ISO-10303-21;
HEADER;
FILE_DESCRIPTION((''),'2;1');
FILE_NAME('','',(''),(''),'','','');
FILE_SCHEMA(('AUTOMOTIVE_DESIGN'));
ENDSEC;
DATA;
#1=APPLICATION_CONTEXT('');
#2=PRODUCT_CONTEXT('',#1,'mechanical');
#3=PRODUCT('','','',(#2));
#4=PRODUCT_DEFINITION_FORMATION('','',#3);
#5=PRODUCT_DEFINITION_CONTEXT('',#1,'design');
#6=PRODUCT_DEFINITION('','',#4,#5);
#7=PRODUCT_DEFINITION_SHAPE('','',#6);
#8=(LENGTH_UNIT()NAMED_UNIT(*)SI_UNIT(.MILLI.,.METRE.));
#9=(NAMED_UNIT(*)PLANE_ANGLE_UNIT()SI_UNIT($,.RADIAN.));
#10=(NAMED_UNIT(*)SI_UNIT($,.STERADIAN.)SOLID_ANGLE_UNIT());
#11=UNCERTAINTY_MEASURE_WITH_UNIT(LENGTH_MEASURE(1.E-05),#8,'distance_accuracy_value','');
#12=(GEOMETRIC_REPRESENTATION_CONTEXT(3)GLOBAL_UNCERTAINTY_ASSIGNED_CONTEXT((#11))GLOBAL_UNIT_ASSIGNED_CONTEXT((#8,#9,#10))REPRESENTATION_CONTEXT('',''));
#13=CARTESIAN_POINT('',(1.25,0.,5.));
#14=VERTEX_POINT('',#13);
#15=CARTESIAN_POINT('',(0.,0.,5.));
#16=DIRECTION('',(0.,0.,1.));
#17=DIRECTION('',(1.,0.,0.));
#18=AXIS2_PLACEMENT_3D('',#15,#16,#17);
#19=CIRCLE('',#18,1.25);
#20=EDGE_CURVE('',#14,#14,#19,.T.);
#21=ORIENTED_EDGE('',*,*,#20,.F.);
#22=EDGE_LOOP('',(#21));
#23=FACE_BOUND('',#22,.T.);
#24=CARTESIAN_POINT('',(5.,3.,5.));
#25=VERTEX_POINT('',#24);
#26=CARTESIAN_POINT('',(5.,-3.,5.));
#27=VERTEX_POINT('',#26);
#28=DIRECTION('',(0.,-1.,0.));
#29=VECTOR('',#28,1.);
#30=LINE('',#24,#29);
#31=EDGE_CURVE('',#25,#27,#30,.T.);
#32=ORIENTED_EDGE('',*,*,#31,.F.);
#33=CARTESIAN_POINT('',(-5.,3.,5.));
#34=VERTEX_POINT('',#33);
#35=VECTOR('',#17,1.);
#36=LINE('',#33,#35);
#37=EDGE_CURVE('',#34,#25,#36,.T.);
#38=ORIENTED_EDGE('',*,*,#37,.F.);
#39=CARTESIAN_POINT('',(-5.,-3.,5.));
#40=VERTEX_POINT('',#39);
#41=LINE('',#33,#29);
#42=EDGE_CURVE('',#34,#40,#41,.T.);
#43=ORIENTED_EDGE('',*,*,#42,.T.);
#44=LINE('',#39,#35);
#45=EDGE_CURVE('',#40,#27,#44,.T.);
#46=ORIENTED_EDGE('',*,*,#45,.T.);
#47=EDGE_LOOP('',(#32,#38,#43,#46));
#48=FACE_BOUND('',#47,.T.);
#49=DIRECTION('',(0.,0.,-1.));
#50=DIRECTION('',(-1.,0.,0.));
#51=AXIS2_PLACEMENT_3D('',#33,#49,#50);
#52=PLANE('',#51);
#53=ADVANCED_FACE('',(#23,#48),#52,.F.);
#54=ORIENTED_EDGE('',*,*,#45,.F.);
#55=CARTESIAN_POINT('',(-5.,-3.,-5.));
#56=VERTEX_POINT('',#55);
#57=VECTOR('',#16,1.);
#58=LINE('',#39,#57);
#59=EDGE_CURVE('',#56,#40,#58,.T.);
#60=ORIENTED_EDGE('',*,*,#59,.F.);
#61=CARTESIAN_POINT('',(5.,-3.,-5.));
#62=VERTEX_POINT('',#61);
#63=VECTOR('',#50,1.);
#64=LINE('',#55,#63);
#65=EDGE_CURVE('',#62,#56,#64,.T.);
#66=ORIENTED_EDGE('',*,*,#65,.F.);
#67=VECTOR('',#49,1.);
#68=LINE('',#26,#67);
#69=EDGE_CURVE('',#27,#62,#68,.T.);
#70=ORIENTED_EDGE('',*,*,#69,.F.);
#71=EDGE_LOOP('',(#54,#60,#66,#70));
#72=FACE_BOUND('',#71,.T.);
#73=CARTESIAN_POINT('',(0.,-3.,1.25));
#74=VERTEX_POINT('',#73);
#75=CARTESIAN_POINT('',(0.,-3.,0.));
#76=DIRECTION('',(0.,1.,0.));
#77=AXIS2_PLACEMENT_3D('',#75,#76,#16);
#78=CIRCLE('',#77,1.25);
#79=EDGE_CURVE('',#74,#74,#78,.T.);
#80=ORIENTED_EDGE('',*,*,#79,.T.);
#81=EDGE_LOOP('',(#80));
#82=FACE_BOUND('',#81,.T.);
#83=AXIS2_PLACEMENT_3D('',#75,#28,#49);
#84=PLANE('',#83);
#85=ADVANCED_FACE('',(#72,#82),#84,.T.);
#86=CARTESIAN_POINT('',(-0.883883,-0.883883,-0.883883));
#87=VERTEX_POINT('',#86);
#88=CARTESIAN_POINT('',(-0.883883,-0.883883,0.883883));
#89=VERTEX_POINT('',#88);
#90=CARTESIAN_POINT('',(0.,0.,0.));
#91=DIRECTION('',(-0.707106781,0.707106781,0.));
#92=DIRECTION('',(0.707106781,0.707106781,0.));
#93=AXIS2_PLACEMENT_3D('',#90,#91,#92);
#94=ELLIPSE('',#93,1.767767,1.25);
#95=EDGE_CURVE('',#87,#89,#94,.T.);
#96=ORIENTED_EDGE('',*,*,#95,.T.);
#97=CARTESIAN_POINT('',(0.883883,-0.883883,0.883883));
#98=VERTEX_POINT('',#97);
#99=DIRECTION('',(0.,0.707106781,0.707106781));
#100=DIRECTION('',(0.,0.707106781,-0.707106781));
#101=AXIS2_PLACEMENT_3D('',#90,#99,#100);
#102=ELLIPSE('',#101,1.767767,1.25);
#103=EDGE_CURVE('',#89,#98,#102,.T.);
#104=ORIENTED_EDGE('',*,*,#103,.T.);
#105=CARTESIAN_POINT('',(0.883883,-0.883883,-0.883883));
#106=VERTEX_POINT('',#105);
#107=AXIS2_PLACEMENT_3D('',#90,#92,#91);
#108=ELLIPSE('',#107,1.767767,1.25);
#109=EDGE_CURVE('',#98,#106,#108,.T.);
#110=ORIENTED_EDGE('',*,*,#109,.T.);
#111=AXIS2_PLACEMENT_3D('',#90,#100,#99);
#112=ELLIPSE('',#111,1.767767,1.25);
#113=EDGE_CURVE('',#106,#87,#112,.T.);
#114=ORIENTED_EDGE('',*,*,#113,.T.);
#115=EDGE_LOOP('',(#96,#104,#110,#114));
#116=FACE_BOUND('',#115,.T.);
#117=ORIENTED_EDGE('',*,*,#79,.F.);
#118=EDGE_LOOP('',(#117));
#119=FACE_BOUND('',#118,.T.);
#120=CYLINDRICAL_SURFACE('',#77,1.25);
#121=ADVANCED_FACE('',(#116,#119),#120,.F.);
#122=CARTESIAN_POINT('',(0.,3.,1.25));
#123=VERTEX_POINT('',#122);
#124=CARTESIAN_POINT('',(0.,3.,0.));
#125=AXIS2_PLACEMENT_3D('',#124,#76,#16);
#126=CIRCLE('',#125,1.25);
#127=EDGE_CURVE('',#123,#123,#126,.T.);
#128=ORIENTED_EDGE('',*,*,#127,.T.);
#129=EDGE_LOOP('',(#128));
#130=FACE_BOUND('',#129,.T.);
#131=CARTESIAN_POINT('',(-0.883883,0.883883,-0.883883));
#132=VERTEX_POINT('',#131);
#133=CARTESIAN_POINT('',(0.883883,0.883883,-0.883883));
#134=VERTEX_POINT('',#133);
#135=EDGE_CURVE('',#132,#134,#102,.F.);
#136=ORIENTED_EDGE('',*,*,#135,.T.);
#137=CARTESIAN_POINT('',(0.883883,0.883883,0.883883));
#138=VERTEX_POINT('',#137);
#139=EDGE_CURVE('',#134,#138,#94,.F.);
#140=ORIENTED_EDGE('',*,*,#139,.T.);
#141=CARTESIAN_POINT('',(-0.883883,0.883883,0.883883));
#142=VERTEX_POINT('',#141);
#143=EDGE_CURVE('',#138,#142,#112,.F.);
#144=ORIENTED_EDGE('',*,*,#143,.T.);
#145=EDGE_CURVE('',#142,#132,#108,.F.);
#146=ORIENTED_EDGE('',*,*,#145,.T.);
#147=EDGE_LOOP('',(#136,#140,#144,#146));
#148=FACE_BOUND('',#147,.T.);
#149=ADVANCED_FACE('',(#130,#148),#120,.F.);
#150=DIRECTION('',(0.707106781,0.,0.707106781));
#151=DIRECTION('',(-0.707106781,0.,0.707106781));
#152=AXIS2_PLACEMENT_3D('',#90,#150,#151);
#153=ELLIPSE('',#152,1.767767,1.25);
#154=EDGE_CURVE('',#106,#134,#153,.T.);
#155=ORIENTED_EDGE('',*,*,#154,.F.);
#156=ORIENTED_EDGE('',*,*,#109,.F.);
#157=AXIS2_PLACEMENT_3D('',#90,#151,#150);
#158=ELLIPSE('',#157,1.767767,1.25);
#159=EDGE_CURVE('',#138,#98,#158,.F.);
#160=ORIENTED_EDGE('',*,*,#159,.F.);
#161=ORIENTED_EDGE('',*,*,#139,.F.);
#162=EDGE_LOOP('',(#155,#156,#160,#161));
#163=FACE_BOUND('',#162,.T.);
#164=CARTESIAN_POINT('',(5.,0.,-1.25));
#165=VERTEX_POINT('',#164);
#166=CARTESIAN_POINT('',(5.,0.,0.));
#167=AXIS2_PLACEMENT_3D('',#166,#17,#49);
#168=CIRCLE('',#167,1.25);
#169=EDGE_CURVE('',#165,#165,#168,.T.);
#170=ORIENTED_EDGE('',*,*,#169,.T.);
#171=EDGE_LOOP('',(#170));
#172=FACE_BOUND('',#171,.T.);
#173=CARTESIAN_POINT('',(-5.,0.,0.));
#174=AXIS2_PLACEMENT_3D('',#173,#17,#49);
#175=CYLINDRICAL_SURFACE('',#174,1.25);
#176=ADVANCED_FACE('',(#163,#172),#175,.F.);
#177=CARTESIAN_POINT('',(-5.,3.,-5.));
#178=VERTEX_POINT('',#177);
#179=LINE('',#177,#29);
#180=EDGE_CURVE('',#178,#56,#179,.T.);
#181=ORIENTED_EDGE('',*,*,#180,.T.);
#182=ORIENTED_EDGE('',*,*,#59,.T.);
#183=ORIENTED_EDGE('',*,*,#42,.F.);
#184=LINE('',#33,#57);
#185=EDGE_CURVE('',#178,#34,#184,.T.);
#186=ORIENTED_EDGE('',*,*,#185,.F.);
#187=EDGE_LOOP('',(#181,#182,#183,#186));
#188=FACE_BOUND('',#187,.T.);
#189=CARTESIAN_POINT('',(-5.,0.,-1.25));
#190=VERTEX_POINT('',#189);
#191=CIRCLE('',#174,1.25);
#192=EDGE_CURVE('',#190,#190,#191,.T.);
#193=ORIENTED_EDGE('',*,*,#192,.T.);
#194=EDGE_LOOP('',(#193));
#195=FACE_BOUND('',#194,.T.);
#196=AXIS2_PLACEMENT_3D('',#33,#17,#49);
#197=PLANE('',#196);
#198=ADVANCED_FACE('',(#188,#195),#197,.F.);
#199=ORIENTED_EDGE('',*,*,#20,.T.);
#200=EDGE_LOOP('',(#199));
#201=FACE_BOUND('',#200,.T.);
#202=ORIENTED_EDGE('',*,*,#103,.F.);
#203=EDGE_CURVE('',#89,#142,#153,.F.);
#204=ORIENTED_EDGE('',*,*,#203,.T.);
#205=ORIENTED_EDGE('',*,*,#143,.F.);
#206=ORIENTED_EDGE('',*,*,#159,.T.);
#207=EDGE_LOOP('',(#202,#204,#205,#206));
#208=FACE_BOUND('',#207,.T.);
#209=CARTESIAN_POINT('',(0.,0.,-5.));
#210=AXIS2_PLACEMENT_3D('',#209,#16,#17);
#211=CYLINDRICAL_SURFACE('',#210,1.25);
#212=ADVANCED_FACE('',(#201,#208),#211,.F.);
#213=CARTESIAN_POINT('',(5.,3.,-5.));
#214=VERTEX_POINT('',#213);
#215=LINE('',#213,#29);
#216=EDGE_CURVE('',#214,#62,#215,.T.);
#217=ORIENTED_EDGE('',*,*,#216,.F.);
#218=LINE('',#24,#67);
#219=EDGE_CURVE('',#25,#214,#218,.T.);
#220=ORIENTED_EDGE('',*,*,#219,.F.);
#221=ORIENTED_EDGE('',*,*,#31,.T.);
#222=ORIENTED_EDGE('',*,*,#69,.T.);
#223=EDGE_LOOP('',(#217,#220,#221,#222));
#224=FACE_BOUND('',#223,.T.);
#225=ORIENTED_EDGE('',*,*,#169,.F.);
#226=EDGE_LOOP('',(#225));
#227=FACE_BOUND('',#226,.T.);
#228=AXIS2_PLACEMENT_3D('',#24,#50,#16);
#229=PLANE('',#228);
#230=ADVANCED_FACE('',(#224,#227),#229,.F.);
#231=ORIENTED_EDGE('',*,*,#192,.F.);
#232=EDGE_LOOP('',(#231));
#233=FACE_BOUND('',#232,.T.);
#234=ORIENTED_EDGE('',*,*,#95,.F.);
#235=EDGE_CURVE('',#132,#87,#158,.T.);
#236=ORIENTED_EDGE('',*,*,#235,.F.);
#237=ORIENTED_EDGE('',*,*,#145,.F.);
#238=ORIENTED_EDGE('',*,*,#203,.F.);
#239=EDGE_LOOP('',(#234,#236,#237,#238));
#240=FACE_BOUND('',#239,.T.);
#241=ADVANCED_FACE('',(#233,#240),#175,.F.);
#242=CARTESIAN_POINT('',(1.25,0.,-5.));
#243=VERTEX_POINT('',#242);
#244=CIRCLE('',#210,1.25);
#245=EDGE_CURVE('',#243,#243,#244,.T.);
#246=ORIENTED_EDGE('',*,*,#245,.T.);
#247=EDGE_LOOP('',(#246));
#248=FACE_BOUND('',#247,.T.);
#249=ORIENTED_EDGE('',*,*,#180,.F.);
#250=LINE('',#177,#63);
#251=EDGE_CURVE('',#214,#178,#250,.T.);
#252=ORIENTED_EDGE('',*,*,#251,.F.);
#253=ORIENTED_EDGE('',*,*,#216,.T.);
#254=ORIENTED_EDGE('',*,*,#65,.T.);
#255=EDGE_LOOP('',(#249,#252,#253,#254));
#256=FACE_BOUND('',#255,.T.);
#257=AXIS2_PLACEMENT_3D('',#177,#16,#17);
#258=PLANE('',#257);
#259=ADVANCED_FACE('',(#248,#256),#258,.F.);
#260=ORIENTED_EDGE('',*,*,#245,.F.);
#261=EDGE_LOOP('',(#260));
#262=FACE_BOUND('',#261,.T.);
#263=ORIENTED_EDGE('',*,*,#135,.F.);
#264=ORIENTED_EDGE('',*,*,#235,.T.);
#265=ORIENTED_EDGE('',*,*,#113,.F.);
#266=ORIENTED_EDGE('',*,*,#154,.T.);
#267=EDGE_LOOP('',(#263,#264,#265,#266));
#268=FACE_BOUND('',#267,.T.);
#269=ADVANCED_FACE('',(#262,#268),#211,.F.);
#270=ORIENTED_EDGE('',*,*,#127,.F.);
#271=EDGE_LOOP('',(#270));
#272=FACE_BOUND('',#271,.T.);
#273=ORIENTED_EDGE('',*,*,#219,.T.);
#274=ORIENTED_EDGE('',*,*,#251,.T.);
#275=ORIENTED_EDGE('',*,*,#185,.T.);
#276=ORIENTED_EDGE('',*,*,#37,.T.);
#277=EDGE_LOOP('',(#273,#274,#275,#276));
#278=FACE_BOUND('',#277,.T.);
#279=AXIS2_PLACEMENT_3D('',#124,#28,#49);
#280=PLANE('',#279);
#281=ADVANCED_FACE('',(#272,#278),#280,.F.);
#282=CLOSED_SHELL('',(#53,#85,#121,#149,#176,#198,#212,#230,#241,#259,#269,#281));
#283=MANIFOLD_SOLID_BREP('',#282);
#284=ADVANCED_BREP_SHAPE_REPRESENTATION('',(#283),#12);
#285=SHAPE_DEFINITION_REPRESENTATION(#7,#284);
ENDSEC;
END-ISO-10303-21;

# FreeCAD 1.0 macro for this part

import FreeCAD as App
import Part
import Sketcher


def add_polygon(sketch, points):
    """Adds a closed chain of lines whose ends are joined by coincident constraints."""
    first, n = sketch.GeometryCount, len(points)
    for a, b in zip(points, points[1:] + points[:1]):
        sketch.addGeometry(Part.LineSegment(App.Vector(*a, 0), App.Vector(*b, 0)), False)
    for i in range(n):
        sketch.addConstraint(Sketcher.Constraint("Coincident", first + i, 2, first + (i + 1) % n, 1))

doc = App.newDocument("Part")
body = doc.addObject("PartDesign::Body", "Body")

sketch1 = body.newObject("Sketcher::SketchObject", "Sketch")
sketch1.AttachmentSupport = (doc.getObject("XZ_Plane"), [""])
sketch1.MapMode = "FlatFace"
add_polygon(sketch1, [(-5, -5), (-5, 5), (5, 5), (5, -5)])
sketch1.addConstraint(Sketcher.Constraint("Vertical", 0))
sketch1.addConstraint(Sketcher.Constraint("Horizontal", 1))
sketch1.addConstraint(Sketcher.Constraint("Vertical", 2))
sketch1.addConstraint(Sketcher.Constraint("Horizontal", 3))
sketch1.addConstraint(Sketcher.Constraint("Symmetric", 0, 2, 2, 2, -1, 1))
sketch1.addConstraint(Sketcher.Constraint("Equal", 3, 0))
sketch1.addConstraint(Sketcher.Constraint("DistanceX", 1, 1, 1, 2, 10.0))
pad1 = body.newObject("PartDesign::Pad", "Pad")
pad1.Profile = sketch1
pad1.Length = 6
pad1.Midplane = True

sketch2 = body.newObject("Sketcher::SketchObject", "Sketch001")
sketch2.AttachmentSupport = (doc.getObject("XZ_Plane"), [""])
sketch2.MapMode = "FlatFace"
sketch2.AttachmentOffset = App.Placement(App.Vector(0, 0, -3), App.Rotation())
sketch2.addGeometry(Part.Circle(App.Vector(0, 0, 0), App.Vector(0, 0, 1), 1.2), False)
sketch2.addConstraint(Sketcher.Constraint("Coincident", 0, 3, -1, 1))
sketch2.addConstraint(Sketcher.Constraint("Diameter", 0, 2.5))
pocket1 = body.newObject("PartDesign::Pocket", "Pocket")
pocket1.Profile = sketch2
pocket1.Type = "ThroughAll"
pocket1.Reversed = True

sketch3 = body.newObject("Sketcher::SketchObject", "Sketch002")
sketch3.AttachmentSupport = (doc.getObject("XY_Plane"), [""])
sketch3.MapMode = "FlatFace"
sketch3.AttachmentOffset = App.Placement(App.Vector(0, 0, 5), App.Rotation())
sketch3.addGeometry(Part.Circle(App.Vector(0, 0, 0), App.Vector(0, 0, 1), 1.2), False)
sketch3.addConstraint(Sketcher.Constraint("Coincident", 0, 3, -1, 1))
sketch3.addConstraint(Sketcher.Constraint("Diameter", 0, 2.5))
pocket2 = body.newObject("PartDesign::Pocket", "Pocket001")
pocket2.Profile = sketch3
pocket2.Type = "ThroughAll"

sketch4 = body.newObject("Sketcher::SketchObject", "Sketch003")
sketch4.AttachmentSupport = (doc.getObject("YZ_Plane"), [""])
sketch4.MapMode = "FlatFace"
sketch4.AttachmentOffset = App.Placement(App.Vector(0, 0, 5), App.Rotation())
sketch4.addGeometry(Part.Circle(App.Vector(0, 0, 0), App.Vector(0, 0, 1), 1.2), False)
sketch4.addConstraint(Sketcher.Constraint("Coincident", 0, 3, -1, 1))
sketch4.addConstraint(Sketcher.Constraint("Diameter", 0, 2.5))
pocket3 = body.newObject("PartDesign::Pocket", "Pocket002")
pocket3.Profile = sketch4
pocket3.Type = "ThroughAll"

doc.recompute()
